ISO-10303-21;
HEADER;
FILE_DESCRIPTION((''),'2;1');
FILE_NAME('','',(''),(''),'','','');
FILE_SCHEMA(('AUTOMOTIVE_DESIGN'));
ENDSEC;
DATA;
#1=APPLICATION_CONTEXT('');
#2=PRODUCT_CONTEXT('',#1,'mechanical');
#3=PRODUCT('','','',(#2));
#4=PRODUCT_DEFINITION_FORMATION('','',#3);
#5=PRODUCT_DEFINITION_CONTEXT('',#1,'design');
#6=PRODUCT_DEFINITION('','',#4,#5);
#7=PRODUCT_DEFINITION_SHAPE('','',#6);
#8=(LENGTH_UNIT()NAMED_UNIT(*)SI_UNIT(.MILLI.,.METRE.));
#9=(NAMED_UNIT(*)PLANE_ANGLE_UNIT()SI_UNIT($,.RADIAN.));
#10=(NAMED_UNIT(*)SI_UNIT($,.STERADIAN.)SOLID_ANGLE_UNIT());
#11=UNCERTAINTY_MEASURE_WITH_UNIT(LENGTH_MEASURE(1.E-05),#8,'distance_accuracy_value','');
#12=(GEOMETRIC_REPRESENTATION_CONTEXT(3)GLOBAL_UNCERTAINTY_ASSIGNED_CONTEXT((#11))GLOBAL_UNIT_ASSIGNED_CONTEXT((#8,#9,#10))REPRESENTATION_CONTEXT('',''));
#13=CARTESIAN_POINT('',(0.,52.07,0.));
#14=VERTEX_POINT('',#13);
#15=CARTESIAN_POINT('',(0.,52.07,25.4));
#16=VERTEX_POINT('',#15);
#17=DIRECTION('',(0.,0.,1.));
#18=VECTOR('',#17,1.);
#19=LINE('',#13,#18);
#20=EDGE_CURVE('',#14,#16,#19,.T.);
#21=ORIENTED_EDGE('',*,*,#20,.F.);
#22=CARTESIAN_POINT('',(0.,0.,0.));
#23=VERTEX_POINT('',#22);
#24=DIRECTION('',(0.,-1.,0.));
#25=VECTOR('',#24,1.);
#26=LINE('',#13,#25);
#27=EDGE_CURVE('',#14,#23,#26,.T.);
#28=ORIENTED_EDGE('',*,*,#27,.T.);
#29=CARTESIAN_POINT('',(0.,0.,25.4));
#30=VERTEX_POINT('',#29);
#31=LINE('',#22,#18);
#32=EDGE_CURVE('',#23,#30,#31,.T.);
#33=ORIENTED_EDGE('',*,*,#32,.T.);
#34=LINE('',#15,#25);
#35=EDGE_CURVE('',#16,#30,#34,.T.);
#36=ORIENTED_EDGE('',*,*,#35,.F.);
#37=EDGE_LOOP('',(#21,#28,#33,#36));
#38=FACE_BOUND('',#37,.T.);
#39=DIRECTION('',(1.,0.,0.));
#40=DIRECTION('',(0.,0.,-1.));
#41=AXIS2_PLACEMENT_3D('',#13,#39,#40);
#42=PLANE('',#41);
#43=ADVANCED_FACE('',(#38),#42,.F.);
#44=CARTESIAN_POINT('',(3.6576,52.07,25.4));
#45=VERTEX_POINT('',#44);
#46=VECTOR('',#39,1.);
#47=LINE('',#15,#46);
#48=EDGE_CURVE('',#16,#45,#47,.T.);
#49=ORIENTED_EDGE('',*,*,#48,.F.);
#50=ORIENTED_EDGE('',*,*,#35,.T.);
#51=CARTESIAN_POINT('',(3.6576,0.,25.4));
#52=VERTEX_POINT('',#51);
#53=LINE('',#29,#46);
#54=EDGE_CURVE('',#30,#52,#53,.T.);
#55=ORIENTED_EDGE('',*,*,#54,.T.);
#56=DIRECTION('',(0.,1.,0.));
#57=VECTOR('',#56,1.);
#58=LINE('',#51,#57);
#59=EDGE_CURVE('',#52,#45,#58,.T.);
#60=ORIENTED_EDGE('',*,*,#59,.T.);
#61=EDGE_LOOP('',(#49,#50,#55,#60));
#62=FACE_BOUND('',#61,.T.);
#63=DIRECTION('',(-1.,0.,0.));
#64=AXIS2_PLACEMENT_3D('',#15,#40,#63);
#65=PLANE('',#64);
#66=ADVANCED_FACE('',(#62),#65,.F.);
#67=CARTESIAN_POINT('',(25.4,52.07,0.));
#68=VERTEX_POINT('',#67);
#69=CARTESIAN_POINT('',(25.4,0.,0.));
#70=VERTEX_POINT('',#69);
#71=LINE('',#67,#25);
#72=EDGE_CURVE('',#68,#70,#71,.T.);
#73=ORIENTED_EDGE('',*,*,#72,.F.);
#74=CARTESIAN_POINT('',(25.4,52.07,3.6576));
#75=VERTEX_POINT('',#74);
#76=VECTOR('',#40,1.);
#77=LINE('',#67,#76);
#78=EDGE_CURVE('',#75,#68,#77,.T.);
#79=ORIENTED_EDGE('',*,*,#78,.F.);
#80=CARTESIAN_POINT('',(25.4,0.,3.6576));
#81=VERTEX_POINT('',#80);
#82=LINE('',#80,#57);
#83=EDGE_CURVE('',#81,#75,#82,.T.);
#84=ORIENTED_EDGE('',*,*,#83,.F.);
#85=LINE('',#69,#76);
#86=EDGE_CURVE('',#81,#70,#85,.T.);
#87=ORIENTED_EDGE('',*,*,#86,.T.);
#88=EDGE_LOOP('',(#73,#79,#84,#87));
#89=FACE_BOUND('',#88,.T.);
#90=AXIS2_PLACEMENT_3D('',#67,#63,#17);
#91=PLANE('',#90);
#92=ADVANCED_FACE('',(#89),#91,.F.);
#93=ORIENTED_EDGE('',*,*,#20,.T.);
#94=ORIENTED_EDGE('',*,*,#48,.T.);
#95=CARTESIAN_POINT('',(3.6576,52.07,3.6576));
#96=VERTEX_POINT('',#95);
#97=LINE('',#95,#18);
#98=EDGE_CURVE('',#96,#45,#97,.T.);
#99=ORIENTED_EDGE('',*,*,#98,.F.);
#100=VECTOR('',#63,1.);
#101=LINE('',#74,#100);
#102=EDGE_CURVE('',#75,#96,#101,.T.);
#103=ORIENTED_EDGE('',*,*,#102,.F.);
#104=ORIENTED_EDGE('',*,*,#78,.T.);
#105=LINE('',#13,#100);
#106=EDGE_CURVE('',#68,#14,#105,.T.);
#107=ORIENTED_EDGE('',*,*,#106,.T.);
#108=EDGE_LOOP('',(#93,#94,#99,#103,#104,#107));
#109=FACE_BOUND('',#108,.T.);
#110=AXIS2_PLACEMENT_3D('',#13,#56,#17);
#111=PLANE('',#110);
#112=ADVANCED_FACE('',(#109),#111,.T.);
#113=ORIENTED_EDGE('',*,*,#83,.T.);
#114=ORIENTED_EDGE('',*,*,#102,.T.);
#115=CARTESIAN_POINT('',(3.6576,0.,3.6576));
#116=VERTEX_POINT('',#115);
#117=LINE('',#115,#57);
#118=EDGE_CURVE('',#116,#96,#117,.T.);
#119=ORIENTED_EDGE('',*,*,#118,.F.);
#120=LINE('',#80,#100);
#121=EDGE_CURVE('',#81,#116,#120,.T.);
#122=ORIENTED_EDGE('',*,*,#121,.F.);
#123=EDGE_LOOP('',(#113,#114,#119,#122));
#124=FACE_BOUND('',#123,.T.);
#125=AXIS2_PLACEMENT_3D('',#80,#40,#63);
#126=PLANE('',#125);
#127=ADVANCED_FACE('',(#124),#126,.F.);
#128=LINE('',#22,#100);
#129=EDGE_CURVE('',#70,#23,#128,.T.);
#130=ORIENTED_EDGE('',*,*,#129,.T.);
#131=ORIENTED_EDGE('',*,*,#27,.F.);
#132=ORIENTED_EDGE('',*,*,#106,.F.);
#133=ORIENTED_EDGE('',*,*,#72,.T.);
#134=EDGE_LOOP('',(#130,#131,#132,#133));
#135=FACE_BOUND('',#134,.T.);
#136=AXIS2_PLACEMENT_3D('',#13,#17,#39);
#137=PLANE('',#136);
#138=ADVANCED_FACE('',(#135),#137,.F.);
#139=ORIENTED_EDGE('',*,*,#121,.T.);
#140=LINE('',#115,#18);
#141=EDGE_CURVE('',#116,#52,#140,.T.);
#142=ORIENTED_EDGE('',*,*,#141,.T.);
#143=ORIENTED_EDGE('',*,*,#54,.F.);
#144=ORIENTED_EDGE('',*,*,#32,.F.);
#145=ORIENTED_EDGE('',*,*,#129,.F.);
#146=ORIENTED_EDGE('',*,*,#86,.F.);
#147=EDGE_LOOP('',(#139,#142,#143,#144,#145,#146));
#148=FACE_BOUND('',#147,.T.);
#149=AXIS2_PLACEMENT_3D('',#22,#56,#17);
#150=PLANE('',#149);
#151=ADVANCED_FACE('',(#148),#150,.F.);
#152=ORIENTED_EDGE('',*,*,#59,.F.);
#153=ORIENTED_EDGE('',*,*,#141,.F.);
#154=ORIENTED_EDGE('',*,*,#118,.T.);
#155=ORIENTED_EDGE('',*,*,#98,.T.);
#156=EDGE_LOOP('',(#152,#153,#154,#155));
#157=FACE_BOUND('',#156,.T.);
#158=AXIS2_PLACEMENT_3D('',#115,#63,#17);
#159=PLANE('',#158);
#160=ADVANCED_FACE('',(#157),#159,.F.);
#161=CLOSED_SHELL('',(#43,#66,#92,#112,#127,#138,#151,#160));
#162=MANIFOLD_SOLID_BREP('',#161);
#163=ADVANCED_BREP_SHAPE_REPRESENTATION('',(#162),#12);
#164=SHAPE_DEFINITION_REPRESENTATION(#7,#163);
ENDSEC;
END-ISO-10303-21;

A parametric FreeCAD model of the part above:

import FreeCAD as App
import Part
import Sketcher

V = App.Vector
Q = App.Units.Quantity


def add_polygon(sketch, points):
    """Adds a closed chain of lines whose ends are joined by coincident constraints."""
    first, n = sketch.GeometryCount, len(points)
    for a, b in zip(points, points[1:] + points[:1]):
        sketch.addGeometry(Part.LineSegment(App.Vector(*a, 0), App.Vector(*b, 0)), False)
    for i in range(n):
        sketch.addConstraint(Sketcher.Constraint("Coincident", first + i, 2, first + (i + 1) % n, 1))

doc = App.newDocument("Part")
body = doc.addObject("PartDesign::Body", "Body")

# Sketch on XZ plane
sketch1 = body.newObject("Sketcher::SketchObject", "Sketch")
sketch1.AttachmentSupport = (doc.getObject("XZ_Plane"), [""])
sketch1.MapMode = "FlatFace"
add_polygon(sketch1, [(0, 0), (0, 25.4), (25.4, 25.4), (25.4, 0)])  # lines 0-3
sketch1.addConstraint([
    Sketcher.Constraint("Vertical", 0),
    Sketcher.Constraint("Horizontal", 1),
    Sketcher.Constraint("Vertical", 2),
    Sketcher.Constraint("Horizontal", 3),
    Sketcher.Constraint("Coincident", 3, 2, -1, 1),
    Sketcher.Constraint("Equal", 3, 0),
    Sketcher.Constraint("DistanceX", 1, 1, 1, 2, Q("1 in")),
])
pad1 = body.newObject("PartDesign::Pad", "Pad")
pad1.Profile = sketch1
pad1.Length = Q("2.05 in")
pad1.Reversed = True

# Sketch on XZ plane
sketch2 = body.newObject("Sketcher::SketchObject", "Sketch001")
sketch2.AttachmentSupport = (doc.getObject("XZ_Plane"), [""])
sketch2.MapMode = "FlatFace"
sketch2.AttachmentOffset = App.Placement(V(0, 0, -2.05 * 25.4), App.Rotation())
add_polygon(sketch2, [(3.6576, 3.6576), (3.6576, 25.4), (25.4, 25.4), (25.4, 3.6576)])  # lines 0-3
sketch2.addConstraint([
    Sketcher.Constraint("Vertical", 0),
    Sketcher.Constraint("Horizontal", 1),
    Sketcher.Constraint("Vertical", 2),
    Sketcher.Constraint("Horizontal", 3),
    Sketcher.Constraint("Equal", 3, 0),
    Sketcher.Constraint("DistanceY", -1, 1, 0, 2, Q("1 in")),
    Sketcher.Constraint("DistanceX", -1, 1, 1, 2, Q("1 in")),
    Sketcher.Constraint("DistanceX", 1, 1, 1, 2, Q("0.856 in")),
])
pocket1 = body.newObject("PartDesign::Pocket", "Pocket")
pocket1.Profile = sketch2
pocket1.Length = Q("2.05 in")
pocket1.Reversed = True

doc.recompute()
